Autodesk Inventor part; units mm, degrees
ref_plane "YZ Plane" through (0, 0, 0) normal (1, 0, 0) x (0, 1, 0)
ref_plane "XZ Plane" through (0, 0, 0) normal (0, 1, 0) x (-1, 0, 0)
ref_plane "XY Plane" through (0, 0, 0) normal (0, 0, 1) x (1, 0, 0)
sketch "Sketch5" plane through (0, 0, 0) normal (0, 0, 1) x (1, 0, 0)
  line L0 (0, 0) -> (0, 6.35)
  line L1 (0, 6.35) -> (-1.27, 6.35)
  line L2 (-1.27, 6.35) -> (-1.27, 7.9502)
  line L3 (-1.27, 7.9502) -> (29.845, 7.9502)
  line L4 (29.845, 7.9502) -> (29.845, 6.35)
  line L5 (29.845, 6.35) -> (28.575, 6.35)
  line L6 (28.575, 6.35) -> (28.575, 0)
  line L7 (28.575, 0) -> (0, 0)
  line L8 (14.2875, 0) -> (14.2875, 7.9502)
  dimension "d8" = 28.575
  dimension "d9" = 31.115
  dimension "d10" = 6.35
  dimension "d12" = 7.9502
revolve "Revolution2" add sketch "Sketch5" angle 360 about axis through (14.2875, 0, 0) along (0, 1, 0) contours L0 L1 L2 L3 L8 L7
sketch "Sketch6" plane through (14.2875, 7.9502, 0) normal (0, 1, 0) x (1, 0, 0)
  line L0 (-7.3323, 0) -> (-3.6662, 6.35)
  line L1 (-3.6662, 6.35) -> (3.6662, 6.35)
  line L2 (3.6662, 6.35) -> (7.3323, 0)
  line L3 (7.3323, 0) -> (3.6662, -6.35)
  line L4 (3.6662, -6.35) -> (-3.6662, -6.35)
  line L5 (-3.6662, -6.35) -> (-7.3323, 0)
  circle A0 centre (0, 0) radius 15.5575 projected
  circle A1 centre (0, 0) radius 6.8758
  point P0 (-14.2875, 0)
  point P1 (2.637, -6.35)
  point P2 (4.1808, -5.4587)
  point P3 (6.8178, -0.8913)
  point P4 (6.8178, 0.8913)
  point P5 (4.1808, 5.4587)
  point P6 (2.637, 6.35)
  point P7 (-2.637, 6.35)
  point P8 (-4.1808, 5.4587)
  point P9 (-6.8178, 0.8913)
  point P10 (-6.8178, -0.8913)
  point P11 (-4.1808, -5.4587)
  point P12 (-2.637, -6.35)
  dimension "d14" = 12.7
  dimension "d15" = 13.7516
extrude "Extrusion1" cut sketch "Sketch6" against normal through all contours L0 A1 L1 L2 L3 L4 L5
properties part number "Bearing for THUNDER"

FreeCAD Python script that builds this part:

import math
import FreeCAD as App
import Part
import Sketcher

V = App.Vector
Q = App.Units.Quantity


def add_polygon(sketch, points):
    """Adds a closed chain of lines whose ends are joined by coincident constraints."""
    first, n = sketch.GeometryCount, len(points)
    for a, b in zip(points, points[1:] + points[:1]):
        sketch.addGeometry(Part.LineSegment(App.Vector(*a, 0), App.Vector(*b, 0)), False)
    for i in range(n):
        sketch.addConstraint(Sketcher.Constraint("Coincident", first + i, 2, first + (i + 1) % n, 1))

doc = App.newDocument("Part")
body = doc.addObject("PartDesign::Body", "Body")

# Sketch on XY plane
sketch1 = body.newObject("Sketcher::SketchObject", "Sketch")
sketch1.AttachmentSupport = (doc.getObject("XY_Plane"), [""])
sketch1.MapMode = "FlatFace"
add_polygon(sketch1, [(0, 6.3), (0, 0), (14.3, 0), (14.3, 8), (-1.3, 8), (-1.3, 6.3)])  # lines 0-5
sketch1.addGeometry(Part.LineSegment(V(14.3, 0, 0), V(14.3, 8, 0)), True)  # axis
sketch1.addConstraint([
    Sketcher.Constraint("Vertical", 0),
    Sketcher.Constraint("Horizontal", 1),
    Sketcher.Constraint("Vertical", 2),
    Sketcher.Constraint("Horizontal", 3),
    Sketcher.Constraint("Vertical", 4),
    Sketcher.Constraint("Horizontal", 5),
    Sketcher.Constraint("Vertical", 6),
    Sketcher.Constraint("Coincident", 0, 2, -1, 1),
    Sketcher.Constraint("Coincident", 6, 1, 1, 2),
    Sketcher.Constraint("Horizontal", 3, 2, 6, 2),
    Sketcher.Constraint("DistanceY", 0, 2, 0, 1, Q("0.25 in")),
    Sketcher.Constraint("DistanceY", 2, 1, 2, 2, Q("0.313 in")),
    Sketcher.Constraint("DistanceX", 5, 1, 5, 2, Q("0.05 in")),
    Sketcher.Constraint("DistanceX", 1, 1, 1, 2, Q("0.5625 in")),
])
revolution = body.newObject("PartDesign::Revolution", "Revolution")
revolution.Profile = sketch1
revolution.ReferenceAxis = (sketch1, ["Axis0"])
revolution.Angle = 360

# Sketch on XZ plane
sketch2 = body.newObject("Sketcher::SketchObject", "Sketch001")
sketch2.AttachmentSupport = (doc.getObject("XZ_Plane"), [""])
sketch2.MapMode = "FlatFace"
sketch2.AttachmentOffset = App.Placement(V(0, 0, -0.313 * 25.4), App.Rotation())
sketch2.addGeometry([
    Part.LineSegment(V(10.1, -5.5, 0), V(7.5, -0.9, 0)),  # 0
    Part.ArcOfCircle(Part.Circle(V(14.3, 0, 0), V(0, 0, 1), 6.9), math.radians(172.55), math.radians(187.45)),  # 1
    Part.LineSegment(V(7.5, 0.9, 0), V(10.1, 5.5, 0)),  # 2
    Part.ArcOfCircle(Part.Circle(V(14.3, 0, 0), V(0, 0, 1), 6.9), math.radians(112.55), math.radians(127.45)),  # 3
    Part.LineSegment(V(11.7, 6.3, 0), V(16.9, 6.3, 0)),  # 4
    Part.ArcOfCircle(Part.Circle(V(14.3, 0, 0), V(0, 0, 1), 6.9), math.radians(52.55), math.radians(67.45)),  # 5
    Part.LineSegment(V(18.5, 5.5, 0), V(21.1, 0.9, 0)),  # 6
    Part.ArcOfCircle(Part.Circle(V(14.3, 0, 0), V(0, 0, 1), 6.9), math.radians(-7.45), math.radians(7.45)),  # 7
    Part.LineSegment(V(21.1, -0.9, 0), V(18.5, -5.5, 0)),  # 8
    Part.ArcOfCircle(Part.Circle(V(14.3, 0, 0), V(0, 0, 1), 6.9), math.radians(-67.45), math.radians(-52.55)),  # 9
    Part.LineSegment(V(16.9, -6.3, 0), V(11.7, -6.3, 0)),  # 10
    Part.ArcOfCircle(Part.Circle(V(14.3, 0, 0), V(0, 0, 1), 6.9), math.radians(-127.45), math.radians(-112.55)),  # 11
], False)
sketch2.addConstraint([
    Sketcher.Constraint("Coincident", 0, 2, 1, 2),
    Sketcher.Constraint("Coincident", 1, 1, 2, 1),
    Sketcher.Constraint("Coincident", 2, 2, 3, 2),
    Sketcher.Constraint("Coincident", 3, 1, 4, 1),
    Sketcher.Constraint("Coincident", 4, 2, 5, 2),
    Sketcher.Constraint("Coincident", 5, 1, 6, 1),
    Sketcher.Constraint("Coincident", 6, 2, 7, 2),
    Sketcher.Constraint("Coincident", 7, 1, 8, 1),
    Sketcher.Constraint("Coincident", 8, 2, 9, 2),
    Sketcher.Constraint("Coincident", 9, 1, 10, 1),
    Sketcher.Constraint("Coincident", 10, 2, 11, 2),
    Sketcher.Constraint("Coincident", 11, 1, 0, 1),
    Sketcher.Constraint("Horizontal", 4),
    Sketcher.Constraint("Horizontal", 10),
    Sketcher.Constraint("Coincident", 3, 3, 1, 3),
    Sketcher.Constraint("Coincident", 5, 3, 1, 3),
    Sketcher.Constraint("Coincident", 7, 3, 1, 3),
    Sketcher.Constraint("Coincident", 9, 3, 1, 3),
    Sketcher.Constraint("Coincident", 11, 3, 1, 3),
    Sketcher.Constraint("Equal", 1, 3),
    Sketcher.Constraint("Equal", 3, 5),
    Sketcher.Constraint("Equal", 5, 7),
    Sketcher.Constraint("Equal", 7, 9),
    Sketcher.Constraint("Equal", 9, 11),
    Sketcher.Constraint("Symmetric", 0, 2, 1, 1, -1),
    Sketcher.Constraint("Parallel", 0, 6),
    Sketcher.Constraint("Parallel", 2, 8),
    Sketcher.Constraint("Horizontal", 2, 2, 5, 1),
    Sketcher.Constraint("Horizontal", 1, 1, 6, 2),
    Sketcher.Constraint("Horizontal", 0, 2, 7, 1),
    Sketcher.Constraint("Vertical", 4, 2, 9, 1),
    Sketcher.Constraint("Radius", 1, Q("0.2707 in")),
    Sketcher.Constraint("Angle", 0, Q("119.9995 deg")),
    Sketcher.Constraint("DistanceY", -1, 1, 3, 1, Q("0.25 in")),
    Sketcher.Constraint("DistanceY", 0, 2, 2, 2, Q("0.25 in")),
    Sketcher.Constraint("DistanceX", -1, 1, 1, 3, Q("0.5625 in")),
])
pocket1 = body.newObject("PartDesign::Pocket", "Pocket")
pocket1.Profile = sketch2
pocket1.Type = "ThroughAll"
pocket1.Reversed = True

doc.recompute()
